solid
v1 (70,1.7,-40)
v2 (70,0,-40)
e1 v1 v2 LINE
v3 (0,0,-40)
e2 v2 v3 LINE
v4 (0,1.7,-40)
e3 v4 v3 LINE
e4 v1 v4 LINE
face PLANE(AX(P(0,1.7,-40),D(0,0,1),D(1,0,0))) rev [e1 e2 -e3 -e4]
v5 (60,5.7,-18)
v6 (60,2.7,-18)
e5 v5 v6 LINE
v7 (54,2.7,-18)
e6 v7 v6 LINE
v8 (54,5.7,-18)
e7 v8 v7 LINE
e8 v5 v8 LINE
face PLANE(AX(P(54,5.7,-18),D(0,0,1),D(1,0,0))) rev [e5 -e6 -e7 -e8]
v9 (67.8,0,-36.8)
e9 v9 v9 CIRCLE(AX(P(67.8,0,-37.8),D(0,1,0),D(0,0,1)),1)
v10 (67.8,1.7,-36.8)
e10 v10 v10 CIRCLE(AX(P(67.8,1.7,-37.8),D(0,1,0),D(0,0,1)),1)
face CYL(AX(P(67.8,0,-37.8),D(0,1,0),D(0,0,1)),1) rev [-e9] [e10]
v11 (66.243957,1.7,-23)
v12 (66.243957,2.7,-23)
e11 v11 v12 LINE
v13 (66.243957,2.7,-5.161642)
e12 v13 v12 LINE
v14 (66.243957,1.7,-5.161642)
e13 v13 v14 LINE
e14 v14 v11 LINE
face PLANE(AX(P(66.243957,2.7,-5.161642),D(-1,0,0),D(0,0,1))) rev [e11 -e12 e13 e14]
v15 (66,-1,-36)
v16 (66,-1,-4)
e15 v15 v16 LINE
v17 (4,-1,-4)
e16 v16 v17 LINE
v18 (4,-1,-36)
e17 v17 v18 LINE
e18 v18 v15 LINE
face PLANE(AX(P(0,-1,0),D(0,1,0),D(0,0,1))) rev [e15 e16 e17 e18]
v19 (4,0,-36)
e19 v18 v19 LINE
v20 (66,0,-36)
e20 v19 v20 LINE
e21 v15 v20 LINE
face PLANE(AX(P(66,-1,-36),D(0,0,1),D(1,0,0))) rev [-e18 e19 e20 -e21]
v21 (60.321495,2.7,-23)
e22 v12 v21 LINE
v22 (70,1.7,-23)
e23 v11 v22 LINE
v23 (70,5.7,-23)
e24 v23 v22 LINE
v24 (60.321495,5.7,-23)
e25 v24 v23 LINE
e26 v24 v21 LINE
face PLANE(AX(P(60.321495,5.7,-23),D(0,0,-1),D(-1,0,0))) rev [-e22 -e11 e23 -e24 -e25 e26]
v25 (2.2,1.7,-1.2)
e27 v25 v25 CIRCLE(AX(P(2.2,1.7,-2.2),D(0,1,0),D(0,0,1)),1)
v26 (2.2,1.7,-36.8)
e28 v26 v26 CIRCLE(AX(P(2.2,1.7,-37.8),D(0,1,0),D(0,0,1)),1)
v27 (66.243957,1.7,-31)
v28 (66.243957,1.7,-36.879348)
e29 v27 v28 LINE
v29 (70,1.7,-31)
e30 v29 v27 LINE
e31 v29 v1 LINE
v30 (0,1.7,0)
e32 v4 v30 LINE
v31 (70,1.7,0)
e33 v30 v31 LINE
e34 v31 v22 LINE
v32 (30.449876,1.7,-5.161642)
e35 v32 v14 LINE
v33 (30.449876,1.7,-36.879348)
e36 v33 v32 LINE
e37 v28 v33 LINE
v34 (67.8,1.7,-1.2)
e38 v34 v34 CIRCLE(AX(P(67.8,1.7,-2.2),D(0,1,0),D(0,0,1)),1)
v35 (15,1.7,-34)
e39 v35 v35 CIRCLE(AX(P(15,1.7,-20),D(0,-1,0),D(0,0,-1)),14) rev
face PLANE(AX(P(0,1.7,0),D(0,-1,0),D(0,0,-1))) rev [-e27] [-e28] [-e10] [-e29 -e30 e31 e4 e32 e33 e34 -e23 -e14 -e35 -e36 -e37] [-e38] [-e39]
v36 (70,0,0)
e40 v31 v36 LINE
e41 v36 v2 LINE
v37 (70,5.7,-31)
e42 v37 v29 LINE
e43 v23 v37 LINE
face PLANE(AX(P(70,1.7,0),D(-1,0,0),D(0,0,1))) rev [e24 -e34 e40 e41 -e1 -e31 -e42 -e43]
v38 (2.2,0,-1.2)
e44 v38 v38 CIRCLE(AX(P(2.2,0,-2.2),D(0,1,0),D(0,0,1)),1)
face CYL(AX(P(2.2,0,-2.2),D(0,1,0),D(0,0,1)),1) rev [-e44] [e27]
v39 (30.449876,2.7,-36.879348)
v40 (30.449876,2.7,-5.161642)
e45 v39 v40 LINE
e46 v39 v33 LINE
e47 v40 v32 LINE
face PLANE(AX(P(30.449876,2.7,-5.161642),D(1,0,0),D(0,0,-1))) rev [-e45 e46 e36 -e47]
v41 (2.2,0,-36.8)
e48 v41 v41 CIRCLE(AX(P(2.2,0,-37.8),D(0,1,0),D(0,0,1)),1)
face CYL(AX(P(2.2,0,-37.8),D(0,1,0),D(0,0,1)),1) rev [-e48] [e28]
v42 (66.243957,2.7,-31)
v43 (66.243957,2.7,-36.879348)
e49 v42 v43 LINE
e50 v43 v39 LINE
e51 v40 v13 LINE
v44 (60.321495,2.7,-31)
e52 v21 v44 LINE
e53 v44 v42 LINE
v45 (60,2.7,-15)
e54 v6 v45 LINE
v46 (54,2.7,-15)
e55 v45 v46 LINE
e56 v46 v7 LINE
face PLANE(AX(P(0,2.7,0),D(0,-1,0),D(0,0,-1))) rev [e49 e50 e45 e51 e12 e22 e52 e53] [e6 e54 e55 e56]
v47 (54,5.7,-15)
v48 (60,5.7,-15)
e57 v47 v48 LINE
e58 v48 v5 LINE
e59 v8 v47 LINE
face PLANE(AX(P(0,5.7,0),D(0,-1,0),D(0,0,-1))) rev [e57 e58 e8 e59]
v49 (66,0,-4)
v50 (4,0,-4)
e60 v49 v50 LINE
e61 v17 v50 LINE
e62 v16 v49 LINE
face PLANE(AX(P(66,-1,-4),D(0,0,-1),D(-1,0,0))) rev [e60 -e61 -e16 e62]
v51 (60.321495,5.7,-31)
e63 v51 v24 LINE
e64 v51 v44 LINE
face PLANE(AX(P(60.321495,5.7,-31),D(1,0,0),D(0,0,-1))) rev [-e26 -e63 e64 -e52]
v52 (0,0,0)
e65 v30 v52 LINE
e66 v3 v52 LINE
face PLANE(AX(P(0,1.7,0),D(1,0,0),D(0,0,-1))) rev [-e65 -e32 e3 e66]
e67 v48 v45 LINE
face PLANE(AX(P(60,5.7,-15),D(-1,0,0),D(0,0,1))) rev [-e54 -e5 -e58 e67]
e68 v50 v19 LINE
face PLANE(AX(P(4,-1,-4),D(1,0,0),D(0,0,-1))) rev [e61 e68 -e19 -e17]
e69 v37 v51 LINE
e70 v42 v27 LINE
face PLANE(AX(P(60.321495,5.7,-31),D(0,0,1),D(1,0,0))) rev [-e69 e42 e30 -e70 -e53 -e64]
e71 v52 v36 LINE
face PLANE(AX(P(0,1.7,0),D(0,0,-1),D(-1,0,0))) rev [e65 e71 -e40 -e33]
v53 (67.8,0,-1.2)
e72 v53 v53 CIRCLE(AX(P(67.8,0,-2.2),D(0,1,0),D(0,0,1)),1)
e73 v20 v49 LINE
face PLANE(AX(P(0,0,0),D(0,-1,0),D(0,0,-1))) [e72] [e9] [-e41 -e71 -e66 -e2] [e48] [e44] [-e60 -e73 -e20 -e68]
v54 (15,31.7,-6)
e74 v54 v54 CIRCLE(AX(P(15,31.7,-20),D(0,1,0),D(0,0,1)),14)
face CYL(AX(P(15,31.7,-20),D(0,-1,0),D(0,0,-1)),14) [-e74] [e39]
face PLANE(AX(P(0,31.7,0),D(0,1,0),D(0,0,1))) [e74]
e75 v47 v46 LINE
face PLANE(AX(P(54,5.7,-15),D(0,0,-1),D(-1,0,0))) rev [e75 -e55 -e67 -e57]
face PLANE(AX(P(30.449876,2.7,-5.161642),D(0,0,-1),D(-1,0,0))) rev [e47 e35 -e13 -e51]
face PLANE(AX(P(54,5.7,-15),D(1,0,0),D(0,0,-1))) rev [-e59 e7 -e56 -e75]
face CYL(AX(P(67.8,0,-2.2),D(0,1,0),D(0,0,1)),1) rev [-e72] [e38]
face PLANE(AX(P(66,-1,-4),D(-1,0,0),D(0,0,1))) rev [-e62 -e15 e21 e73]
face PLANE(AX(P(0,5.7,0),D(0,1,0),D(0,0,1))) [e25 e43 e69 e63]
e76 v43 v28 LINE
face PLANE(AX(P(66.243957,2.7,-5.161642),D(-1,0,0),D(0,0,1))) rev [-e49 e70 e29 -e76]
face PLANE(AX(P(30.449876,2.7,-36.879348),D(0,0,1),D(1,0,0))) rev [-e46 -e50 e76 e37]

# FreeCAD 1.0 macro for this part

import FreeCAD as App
import Part
import Sketcher
Q = App.Units.Quantity

doc = App.newDocument("Part")
body = doc.addObject("PartDesign::Body", "Body")

# Sketch on XZ plane
sketch1 = body.newObject("Sketcher::SketchObject", "Sketch")
sketch1.AttachmentSupport = (doc.getObject("XZ_Plane"), [""])
sketch1.MapMode = "FlatFace"
sketch1.addGeometry([
    Part.LineSegment(App.Vector(0, -40, 0), App.Vector(0, 0, 0)),
    Part.LineSegment(App.Vector(0, 0, 0), App.Vector(70, 0, 0)),
    Part.LineSegment(App.Vector(70, 0, 0), App.Vector(70, -40, 0)),
    Part.LineSegment(App.Vector(70, -40, 0), App.Vector(0, -40, 0)),
], False)
sketch1.addConstraint([
    Sketcher.Constraint("Coincident", 0, 2, 1, 1),
    Sketcher.Constraint("Coincident", 1, 2, 2, 1),
    Sketcher.Constraint("Coincident", 2, 2, 3, 1),
    Sketcher.Constraint("Coincident", 3, 2, 0, 1),
    Sketcher.Constraint("Vertical", 0),
    Sketcher.Constraint("Horizontal", 1),
    Sketcher.Constraint("Vertical", 2),
    Sketcher.Constraint("Horizontal", 3),
    Sketcher.Constraint("Coincident", 0, 2, -1, 1),
    Sketcher.Constraint("DistanceX", 1, 1, 1, 2, Q("70 mm")),
    Sketcher.Constraint("DistanceY", 0, 1, 0, 2, Q("40 mm")),
])
pad1 = body.newObject("PartDesign::Pad", "Pad")
pad1.Profile = sketch1
pad1.Length = 1.7
pad1.Reversed = True

# Sketch on XZ plane
sketch2 = body.newObject("Sketcher::SketchObject", "Sketch001")
sketch2.AttachmentSupport = (doc.getObject("XZ_Plane"), [""])
sketch2.MapMode = "FlatFace"
sketch2.AttachmentOffset = App.Placement(App.Vector(0, 0, -1.7), App.Rotation())
sketch2.addGeometry([
    Part.Circle(App.Vector(67.8, -37.8, 0), App.Vector(0, 0, 1), 1),
    Part.Circle(App.Vector(2.2, -37.8, 0), App.Vector(0, 0, 1), 1),
    Part.Circle(App.Vector(2.2, -2.2, 0), App.Vector(0, 0, 1), 1),
    Part.Circle(App.Vector(67.8, -2.2, 0), App.Vector(0, 0, 1), 1),
], False)
sketch2.addConstraint([
    Sketcher.Constraint("Equal", 0, 1),
    Sketcher.Constraint("Equal", 1, 2),
    Sketcher.Constraint("Equal", 2, 3),
    Sketcher.Constraint("Horizontal", 0, 3, 1, 3),
    Sketcher.Constraint("Horizontal", 2, 3, 3, 3),
    Sketcher.Constraint("Vertical", 1, 3, 2, 3),
    Sketcher.Constraint("Vertical", 0, 3, 3, 3),
    Sketcher.Constraint("Diameter", 0, Q("2 mm")),
    Sketcher.Constraint("DistanceX", -1, 1, 0, 3, Q("67.8 mm")),
    Sketcher.Constraint("DistanceY", 0, 3, -1, 1, Q("37.8 mm")),
    Sketcher.Constraint("DistanceX", -1, 1, 1, 3, Q("2.2 mm")),
    Sketcher.Constraint("DistanceY", 2, 3, -1, 1, Q("2.2 mm")),
])
pocket1 = body.newObject("PartDesign::Pocket", "Pocket")
pocket1.Profile = sketch2
pocket1.Length = 1.7
pocket1.Reversed = True

# Sketch on XZ plane
sketch3 = body.newObject("Sketcher::SketchObject", "Sketch002")
sketch3.AttachmentSupport = (doc.getObject("XZ_Plane"), [""])
sketch3.MapMode = "FlatFace"
sketch3.AttachmentOffset = App.Placement(App.Vector(0, 0, -1.7), App.Rotation())
sketch3.addGeometry(Part.Circle(App.Vector(15, -20, 0), App.Vector(0, 0, 1), 14), False)
sketch3.addConstraint([
    Sketcher.Constraint("Diameter", 0, Q("28 mm")),
    Sketcher.Constraint("DistanceX", -1, 1, 0, 3, Q("15 mm")),
    Sketcher.Constraint("DistanceY", 0, 3, -1, 1, Q("20 mm")),
])
pad2 = body.newObject("PartDesign::Pad", "Pad001")
pad2.Profile = sketch3
pad2.Length = 30
pad2.Reversed = True

# Sketch on XZ plane
sketch4 = body.newObject("Sketcher::SketchObject", "Sketch003")
sketch4.AttachmentSupport = (doc.getObject("XZ_Plane"), [""])
sketch4.MapMode = "FlatFace"
sketch4.AttachmentOffset = App.Placement(App.Vector(0, 0, -1.7), App.Rotation())
sketch4.addGeometry([
    Part.LineSegment(App.Vector(60.321495, -31, 0), App.Vector(60.321495, -23, 0)),
    Part.LineSegment(App.Vector(60.321495, -23, 0), App.Vector(70, -23, 0)),
    Part.LineSegment(App.Vector(70, -23, 0), App.Vector(70, -31, 0)),
    Part.LineSegment(App.Vector(70, -31, 0), App.Vector(60.321495, -31, 0)),
], False)
sketch4.addConstraint([
    Sketcher.Constraint("Coincident", 0, 2, 1, 1),
    Sketcher.Constraint("Coincident", 1, 2, 2, 1),
    Sketcher.Constraint("Coincident", 2, 2, 3, 1),
    Sketcher.Constraint("Coincident", 3, 2, 0, 1),
    Sketcher.Constraint("Vertical", 0),
    Sketcher.Constraint("Horizontal", 1),
    Sketcher.Constraint("Vertical", 2),
    Sketcher.Constraint("Horizontal", 3),
    Sketcher.Constraint("DistanceY", 0, 1, 0, 2, Q("8 mm")),
    Sketcher.Constraint("DistanceY", 0, 2, -1, 1, Q("23 mm")),
    Sketcher.Constraint("DistanceX", -1, 1, 1, 2, Q("70 mm")),
    Sketcher.Constraint("DistanceX", 1, 1, 1, 2, Q("9.678505 mm")),
])
pad3 = body.newObject("PartDesign::Pad", "Pad002")
pad3.Profile = sketch4
pad3.Length = 4
pad3.Reversed = True

# Sketch on XZ plane
sketch5 = body.newObject("Sketcher::SketchObject", "Sketch004")
sketch5.AttachmentSupport = (doc.getObject("XZ_Plane"), [""])
sketch5.MapMode = "FlatFace"
sketch5.AttachmentOffset = App.Placement(App.Vector(0, 0, -1.7), App.Rotation())
sketch5.addGeometry([
    Part.LineSegment(App.Vector(54, -18, 0), App.Vector(54, -15, 0)),
    Part.LineSegment(App.Vector(54, -15, 0), App.Vector(60, -15, 0)),
    Part.LineSegment(App.Vector(60, -15, 0), App.Vector(60, -18, 0)),
    Part.LineSegment(App.Vector(60, -18, 0), App.Vector(54, -18, 0)),
], False)
sketch5.addConstraint([
    Sketcher.Constraint("Coincident", 0, 2, 1, 1),
    Sketcher.Constraint("Coincident", 1, 2, 2, 1),
    Sketcher.Constraint("Coincident", 2, 2, 3, 1),
    Sketcher.Constraint("Coincident", 3, 2, 0, 1),
    Sketcher.Constraint("Vertical", 0),
    Sketcher.Constraint("Horizontal", 1),
    Sketcher.Constraint("Vertical", 2),
    Sketcher.Constraint("Horizontal", 3),
    Sketcher.Constraint("DistanceX", 1, 1, 1, 2, Q("6 mm")),
    Sketcher.Constraint("DistanceY", 0, 1, 0, 2, Q("3 mm")),
    Sketcher.Constraint("DistanceX", -1, 1, 0, 2, Q("54 mm")),
    Sketcher.Constraint("DistanceY", 0, 2, -1, 1, Q("15 mm")),
])
pad4 = body.newObject("PartDesign::Pad", "Pad003")
pad4.Profile = sketch5
pad4.Length = 4
pad4.Reversed = True

# Sketch on XZ plane
sketch6 = body.newObject("Sketcher::SketchObject", "Sketch005")
sketch6.AttachmentSupport = (doc.getObject("XZ_Plane"), [""])
sketch6.MapMode = "FlatFace"
sketch6.addGeometry([
    Part.LineSegment(App.Vector(4, -4, 0), App.Vector(4, -36, 0)),
    Part.LineSegment(App.Vector(4, -36, 0), App.Vector(66, -36, 0)),
    Part.LineSegment(App.Vector(66, -36, 0), App.Vector(66, -4, 0)),
    Part.LineSegment(App.Vector(66, -4, 0), App.Vector(4, -4, 0)),
], False)
sketch6.addConstraint([
    Sketcher.Constraint("Coincident", 0, 2, 1, 1),
    Sketcher.Constraint("Coincident", 1, 2, 2, 1),
    Sketcher.Constraint("Coincident", 2, 2, 3, 1),
    Sketcher.Constraint("Coincident", 3, 2, 0, 1),
    Sketcher.Constraint("Vertical", 0),
    Sketcher.Constraint("Horizontal", 1),
    Sketcher.Constraint("Vertical", 2),
    Sketcher.Constraint("Horizontal", 3),
    Sketcher.Constraint("DistanceX", 1, 1, 1, 2, Q("62 mm")),
    Sketcher.Constraint("DistanceY", 0, 2, 0, 1, Q("32 mm")),
    Sketcher.Constraint("DistanceX", -1, 1, 0, 2, Q("4 mm")),
    Sketcher.Constraint("DistanceY", 0, 2, -1, 1, Q("36 mm")),
])
pad5 = body.newObject("PartDesign::Pad", "Pad004")
pad5.Profile = sketch6
pad5.Length = 1

# Sketch on XZ plane
sketch7 = body.newObject("Sketcher::SketchObject", "Sketch006")
sketch7.AttachmentSupport = (doc.getObject("XZ_Plane"), [""])
sketch7.MapMode = "FlatFace"
sketch7.AttachmentOffset = App.Placement(App.Vector(0, 0, -1.7), App.Rotation())
sketch7.addGeometry([
    Part.LineSegment(App.Vector(30.449876, -36.879348, 0), App.Vector(30.449876, -5.161642, 0)),
    Part.LineSegment(App.Vector(30.449876, -5.161642, 0), App.Vector(66.243957, -5.161642, 0)),
    Part.LineSegment(App.Vector(66.243957, -5.161642, 0), App.Vector(66.243957, -36.879348, 0)),
    Part.LineSegment(App.Vector(66.243957, -36.879348, 0), App.Vector(30.449876, -36.879348, 0)),
], False)
sketch7.addConstraint([
    Sketcher.Constraint("Coincident", 0, 2, 1, 1),
    Sketcher.Constraint("Coincident", 1, 2, 2, 1),
    Sketcher.Constraint("Coincident", 2, 2, 3, 1),
    Sketcher.Constraint("Coincident", 3, 2, 0, 1),
    Sketcher.Constraint("Vertical", 0),
    Sketcher.Constraint("Horizontal", 1),
    Sketcher.Constraint("Vertical", 2),
    Sketcher.Constraint("Horizontal", 3),
    Sketcher.Constraint("DistanceX", 1, 1, 1, 2, Q("35.794081 mm")),
    Sketcher.Constraint("DistanceY", 0, 1, 0, 2, Q("31.717706 mm")),
    Sketcher.Constraint("DistanceY", 2, 2, -1, 1, Q("36.879348 mm")),
    Sketcher.Constraint("DistanceX", -1, 1, 0, 2, Q("30.449876 mm")),
])
pad6 = body.newObject("PartDesign::Pad", "Pad005")
pad6.Profile = sketch7
pad6.Length = 1
pad6.Reversed = True

doc.recompute()
